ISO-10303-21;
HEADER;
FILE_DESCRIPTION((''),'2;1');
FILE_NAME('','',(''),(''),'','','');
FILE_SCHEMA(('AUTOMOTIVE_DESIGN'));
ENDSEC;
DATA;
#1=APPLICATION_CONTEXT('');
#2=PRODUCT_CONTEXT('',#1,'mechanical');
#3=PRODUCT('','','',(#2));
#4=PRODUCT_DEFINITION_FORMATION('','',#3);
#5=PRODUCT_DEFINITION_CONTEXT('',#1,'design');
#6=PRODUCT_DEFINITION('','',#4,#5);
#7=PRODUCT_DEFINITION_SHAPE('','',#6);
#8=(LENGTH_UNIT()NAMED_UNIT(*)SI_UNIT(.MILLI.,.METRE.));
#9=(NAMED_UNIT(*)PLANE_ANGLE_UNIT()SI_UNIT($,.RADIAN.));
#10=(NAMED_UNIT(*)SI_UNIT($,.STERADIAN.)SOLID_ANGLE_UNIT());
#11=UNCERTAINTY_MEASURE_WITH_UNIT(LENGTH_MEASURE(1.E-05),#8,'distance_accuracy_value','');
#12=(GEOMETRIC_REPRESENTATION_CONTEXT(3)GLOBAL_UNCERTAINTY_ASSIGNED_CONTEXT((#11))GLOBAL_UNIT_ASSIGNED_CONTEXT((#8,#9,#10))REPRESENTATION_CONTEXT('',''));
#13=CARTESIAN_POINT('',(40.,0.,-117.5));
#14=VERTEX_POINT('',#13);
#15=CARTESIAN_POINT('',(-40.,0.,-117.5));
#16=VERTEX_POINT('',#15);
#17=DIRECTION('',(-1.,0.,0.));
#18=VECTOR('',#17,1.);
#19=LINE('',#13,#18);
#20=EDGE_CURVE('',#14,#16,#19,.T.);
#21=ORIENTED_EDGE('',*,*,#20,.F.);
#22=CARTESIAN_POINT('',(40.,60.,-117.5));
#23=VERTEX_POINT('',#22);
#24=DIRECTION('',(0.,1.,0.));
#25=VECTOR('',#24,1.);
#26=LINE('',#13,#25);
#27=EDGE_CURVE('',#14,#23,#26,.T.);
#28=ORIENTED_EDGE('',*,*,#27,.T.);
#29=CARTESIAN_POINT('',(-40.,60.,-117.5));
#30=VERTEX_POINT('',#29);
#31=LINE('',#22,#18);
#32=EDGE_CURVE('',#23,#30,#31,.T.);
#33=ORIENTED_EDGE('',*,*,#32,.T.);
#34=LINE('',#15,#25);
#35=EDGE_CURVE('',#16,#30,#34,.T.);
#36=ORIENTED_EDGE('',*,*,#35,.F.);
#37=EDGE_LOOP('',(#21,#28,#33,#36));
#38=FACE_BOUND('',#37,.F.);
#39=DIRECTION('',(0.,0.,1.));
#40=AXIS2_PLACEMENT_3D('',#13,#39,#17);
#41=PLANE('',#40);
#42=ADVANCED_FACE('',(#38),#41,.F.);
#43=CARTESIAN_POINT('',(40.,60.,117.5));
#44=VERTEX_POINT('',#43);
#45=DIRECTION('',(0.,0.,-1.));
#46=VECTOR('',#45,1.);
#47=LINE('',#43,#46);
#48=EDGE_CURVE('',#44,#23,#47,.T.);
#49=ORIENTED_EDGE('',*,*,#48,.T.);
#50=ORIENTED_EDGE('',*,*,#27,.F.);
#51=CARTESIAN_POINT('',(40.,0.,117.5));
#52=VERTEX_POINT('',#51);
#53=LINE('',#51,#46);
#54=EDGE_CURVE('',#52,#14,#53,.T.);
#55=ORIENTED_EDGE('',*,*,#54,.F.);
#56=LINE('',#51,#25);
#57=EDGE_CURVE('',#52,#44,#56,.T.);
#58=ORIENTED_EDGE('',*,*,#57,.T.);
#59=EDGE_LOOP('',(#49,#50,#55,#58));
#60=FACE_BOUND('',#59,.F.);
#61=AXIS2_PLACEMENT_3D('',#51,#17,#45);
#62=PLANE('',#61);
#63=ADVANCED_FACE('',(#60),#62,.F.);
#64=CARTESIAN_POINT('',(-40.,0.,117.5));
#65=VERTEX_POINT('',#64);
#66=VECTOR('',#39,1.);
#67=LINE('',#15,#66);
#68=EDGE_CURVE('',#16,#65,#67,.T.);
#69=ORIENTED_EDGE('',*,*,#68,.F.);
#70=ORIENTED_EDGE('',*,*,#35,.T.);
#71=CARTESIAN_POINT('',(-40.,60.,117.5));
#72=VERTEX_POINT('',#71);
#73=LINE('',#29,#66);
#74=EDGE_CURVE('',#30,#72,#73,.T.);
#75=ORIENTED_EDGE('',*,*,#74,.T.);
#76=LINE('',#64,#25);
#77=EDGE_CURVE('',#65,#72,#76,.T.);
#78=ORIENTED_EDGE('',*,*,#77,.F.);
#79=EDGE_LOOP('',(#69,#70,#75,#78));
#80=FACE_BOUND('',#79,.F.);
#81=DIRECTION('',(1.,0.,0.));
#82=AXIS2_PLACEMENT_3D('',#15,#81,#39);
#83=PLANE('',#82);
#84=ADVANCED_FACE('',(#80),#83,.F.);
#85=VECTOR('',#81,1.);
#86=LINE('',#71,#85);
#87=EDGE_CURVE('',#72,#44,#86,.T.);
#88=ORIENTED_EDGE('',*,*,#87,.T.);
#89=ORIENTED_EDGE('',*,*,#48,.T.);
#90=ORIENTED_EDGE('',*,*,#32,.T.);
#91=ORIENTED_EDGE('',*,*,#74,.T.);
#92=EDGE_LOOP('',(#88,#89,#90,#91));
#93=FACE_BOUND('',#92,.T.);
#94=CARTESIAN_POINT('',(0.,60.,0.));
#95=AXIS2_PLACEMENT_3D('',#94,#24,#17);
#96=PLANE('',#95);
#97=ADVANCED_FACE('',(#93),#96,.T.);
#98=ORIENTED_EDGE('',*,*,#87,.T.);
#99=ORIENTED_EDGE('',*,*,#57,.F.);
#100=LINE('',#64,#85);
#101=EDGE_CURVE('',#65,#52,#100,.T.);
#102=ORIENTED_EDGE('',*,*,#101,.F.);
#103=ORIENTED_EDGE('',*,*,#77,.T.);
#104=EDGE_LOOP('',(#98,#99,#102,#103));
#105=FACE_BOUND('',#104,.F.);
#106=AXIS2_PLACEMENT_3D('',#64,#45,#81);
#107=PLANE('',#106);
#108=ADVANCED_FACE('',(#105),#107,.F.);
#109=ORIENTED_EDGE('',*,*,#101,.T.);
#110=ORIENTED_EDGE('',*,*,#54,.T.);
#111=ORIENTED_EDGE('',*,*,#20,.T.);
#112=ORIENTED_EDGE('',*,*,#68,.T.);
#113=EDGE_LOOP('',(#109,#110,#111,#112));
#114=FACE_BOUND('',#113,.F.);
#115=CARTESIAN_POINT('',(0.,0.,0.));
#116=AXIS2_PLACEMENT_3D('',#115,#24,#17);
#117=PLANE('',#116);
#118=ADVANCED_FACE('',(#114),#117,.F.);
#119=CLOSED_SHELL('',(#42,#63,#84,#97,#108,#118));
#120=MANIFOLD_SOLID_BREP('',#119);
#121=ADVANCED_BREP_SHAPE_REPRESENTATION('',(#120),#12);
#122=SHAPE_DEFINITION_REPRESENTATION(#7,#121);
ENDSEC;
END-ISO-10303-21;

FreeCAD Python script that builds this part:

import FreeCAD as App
import Part
import Sketcher
Q = App.Units.Quantity


def add_polygon(sketch, points):
    """Adds a closed chain of lines whose ends are joined by coincident constraints."""
    first, n = sketch.GeometryCount, len(points)
    for a, b in zip(points, points[1:] + points[:1]):
        sketch.addGeometry(Part.LineSegment(App.Vector(*a, 0), App.Vector(*b, 0)), False)
    for i in range(n):
        sketch.addConstraint(Sketcher.Constraint("Coincident", first + i, 2, first + (i + 1) % n, 1))

doc = App.newDocument("Part")
body = doc.addObject("PartDesign::Body", "Body")

sketch1 = doc.addObject("Sketcher::SketchObject", "Sketch")
body.addObject(sketch1)
sketch1.AttachmentSupport = (doc.XZ_Plane, [""])
sketch1.MapMode = "FlatFace"
add_polygon(sketch1, [(-40, -117.5), (-40, 117.5), (40, 117.5), (40, -117.5)])
sketch1.addConstraint([
    Sketcher.Constraint("Vertical", 0),
    Sketcher.Constraint("Horizontal", 1),
    Sketcher.Constraint("Vertical", 2),
    Sketcher.Constraint("Horizontal", 3),
    Sketcher.Constraint("Symmetric", 0, 2, 2, 2, -1, 1),
    Sketcher.Constraint("DistanceX", 1, 1, 1, 2, Q("80 mm")),
    Sketcher.Constraint("DistanceY", 0, 1, 0, 2, Q("235 mm")),
])
pad1 = doc.addObject("PartDesign::Pad", "Pad")
body.addObject(pad1)
pad1.Profile = sketch1
pad1.Length = 60
pad1.Reversed = True

doc.recompute()
